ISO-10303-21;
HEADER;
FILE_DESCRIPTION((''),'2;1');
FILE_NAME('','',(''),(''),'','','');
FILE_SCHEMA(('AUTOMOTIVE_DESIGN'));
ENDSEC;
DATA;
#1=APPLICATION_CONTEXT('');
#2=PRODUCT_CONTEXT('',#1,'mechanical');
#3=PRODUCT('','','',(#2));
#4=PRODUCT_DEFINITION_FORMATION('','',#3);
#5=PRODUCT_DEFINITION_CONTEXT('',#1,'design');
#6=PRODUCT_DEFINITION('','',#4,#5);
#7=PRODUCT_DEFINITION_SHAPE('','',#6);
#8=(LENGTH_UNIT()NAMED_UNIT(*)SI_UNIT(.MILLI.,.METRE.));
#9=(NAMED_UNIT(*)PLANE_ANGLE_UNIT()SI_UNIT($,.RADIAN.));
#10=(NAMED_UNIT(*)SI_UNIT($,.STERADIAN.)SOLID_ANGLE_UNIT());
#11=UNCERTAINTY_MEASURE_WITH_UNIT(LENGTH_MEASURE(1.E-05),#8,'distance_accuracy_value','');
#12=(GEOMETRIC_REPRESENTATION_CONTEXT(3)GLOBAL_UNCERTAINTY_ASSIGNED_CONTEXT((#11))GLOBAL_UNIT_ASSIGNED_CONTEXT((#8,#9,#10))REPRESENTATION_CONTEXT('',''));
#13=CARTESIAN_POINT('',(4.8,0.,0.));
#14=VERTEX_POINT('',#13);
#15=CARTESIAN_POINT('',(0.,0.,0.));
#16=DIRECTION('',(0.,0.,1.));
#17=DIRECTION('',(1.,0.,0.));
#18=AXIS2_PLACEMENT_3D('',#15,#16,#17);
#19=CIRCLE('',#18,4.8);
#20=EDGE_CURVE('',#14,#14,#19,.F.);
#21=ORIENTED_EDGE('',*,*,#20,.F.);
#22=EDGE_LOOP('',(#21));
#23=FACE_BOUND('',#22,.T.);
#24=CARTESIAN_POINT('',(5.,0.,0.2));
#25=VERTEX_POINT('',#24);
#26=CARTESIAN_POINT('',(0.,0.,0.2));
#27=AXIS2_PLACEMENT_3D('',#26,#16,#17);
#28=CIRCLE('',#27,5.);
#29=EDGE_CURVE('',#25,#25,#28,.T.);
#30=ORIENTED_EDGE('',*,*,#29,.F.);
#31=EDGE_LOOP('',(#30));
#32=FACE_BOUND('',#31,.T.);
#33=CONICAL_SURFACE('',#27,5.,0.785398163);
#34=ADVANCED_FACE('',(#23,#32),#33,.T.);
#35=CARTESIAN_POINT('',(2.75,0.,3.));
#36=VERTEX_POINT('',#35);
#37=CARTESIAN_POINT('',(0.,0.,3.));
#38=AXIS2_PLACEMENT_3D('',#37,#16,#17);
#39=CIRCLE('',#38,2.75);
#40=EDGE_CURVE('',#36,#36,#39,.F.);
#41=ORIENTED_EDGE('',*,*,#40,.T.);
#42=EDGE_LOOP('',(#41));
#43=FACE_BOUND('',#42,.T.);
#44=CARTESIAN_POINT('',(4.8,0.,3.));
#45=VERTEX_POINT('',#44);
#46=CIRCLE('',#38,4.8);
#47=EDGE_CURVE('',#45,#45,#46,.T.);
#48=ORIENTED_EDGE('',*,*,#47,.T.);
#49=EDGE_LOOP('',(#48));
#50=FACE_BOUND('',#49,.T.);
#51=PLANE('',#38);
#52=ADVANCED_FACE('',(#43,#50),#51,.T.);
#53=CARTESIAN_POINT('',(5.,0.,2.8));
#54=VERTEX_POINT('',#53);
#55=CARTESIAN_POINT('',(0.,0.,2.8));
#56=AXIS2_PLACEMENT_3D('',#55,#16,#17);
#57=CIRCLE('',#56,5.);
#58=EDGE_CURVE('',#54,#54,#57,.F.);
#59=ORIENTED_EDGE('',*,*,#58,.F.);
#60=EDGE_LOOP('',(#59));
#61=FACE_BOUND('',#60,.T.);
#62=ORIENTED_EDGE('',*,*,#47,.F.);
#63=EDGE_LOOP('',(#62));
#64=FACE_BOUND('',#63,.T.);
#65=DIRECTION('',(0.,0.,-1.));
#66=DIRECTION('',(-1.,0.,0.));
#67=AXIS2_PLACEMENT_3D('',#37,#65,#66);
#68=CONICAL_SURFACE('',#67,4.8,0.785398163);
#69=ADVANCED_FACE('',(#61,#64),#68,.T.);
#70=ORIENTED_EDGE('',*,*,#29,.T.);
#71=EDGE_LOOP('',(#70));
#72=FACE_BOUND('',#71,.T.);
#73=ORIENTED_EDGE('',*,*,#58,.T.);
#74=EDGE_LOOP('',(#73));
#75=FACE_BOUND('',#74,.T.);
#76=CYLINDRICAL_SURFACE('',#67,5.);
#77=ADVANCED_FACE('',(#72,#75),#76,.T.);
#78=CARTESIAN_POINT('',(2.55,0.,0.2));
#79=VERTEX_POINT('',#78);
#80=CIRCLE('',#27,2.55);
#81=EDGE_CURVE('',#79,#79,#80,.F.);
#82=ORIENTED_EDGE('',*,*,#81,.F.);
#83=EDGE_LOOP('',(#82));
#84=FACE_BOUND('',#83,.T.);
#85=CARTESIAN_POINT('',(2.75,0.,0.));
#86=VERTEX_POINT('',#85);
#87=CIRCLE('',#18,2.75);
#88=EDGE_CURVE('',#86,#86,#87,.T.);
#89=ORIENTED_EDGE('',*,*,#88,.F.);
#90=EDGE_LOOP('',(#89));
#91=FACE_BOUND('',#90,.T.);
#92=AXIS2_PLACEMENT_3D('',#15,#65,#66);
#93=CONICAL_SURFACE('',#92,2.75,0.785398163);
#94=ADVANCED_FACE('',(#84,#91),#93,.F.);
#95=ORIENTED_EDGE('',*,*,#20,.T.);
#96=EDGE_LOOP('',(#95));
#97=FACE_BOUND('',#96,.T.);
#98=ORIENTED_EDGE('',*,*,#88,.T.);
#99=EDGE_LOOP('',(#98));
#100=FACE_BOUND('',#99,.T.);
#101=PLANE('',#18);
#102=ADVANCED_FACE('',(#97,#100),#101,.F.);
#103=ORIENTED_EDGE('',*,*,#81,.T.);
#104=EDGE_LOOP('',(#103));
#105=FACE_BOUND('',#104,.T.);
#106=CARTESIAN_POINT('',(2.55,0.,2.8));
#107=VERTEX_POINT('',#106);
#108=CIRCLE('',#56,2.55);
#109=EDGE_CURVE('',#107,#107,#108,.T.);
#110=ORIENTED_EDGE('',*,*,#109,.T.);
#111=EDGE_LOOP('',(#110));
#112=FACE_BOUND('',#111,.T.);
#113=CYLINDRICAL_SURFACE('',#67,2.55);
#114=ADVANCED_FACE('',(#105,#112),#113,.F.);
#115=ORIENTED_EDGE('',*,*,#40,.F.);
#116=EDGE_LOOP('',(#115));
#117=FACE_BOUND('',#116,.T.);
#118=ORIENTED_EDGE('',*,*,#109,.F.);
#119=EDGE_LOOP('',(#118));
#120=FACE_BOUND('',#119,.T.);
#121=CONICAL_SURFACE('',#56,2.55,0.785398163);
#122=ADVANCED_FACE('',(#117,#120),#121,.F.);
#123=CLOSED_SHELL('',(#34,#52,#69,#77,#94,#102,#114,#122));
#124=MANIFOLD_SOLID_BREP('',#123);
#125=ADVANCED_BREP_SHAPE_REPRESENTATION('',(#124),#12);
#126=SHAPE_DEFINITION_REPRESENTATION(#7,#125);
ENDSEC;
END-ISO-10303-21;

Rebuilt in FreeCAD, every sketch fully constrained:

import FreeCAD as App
import Part
import Sketcher

V = App.Vector
Q = App.Units.Quantity


def edges_at(feature, points):
    """Names of the edges that pass closest to the given points."""
    edges = feature.Shape.Edges
    near = lambda p: min(range(len(edges)), key=lambda i: edges[i].distToShape(Part.Vertex(*p))[0])
    return sorted({f"Edge{near(p) + 1}" for p in points})

doc = App.newDocument("Part")
body = doc.addObject("PartDesign::Body", "Body")

# Sketch on XY plane
sketch1 = doc.addObject("Sketcher::SketchObject", "Sketch")
body.addObject(sketch1)
sketch1.AttachmentSupport = (doc.XY_Plane, [""])
sketch1.MapMode = "FlatFace"
sketch1.addGeometry([
    Part.Circle(V(0, 0, 0), V(0, 0, 1), 5),
    Part.Circle(V(0, 0, 0), V(0, 0, 1), 2.5),
], False)
sketch1.addConstraint([
    Sketcher.Constraint("Coincident", 0, 3, -1, 1),
    Sketcher.Constraint("Coincident", 1, 3, -1, 1),
    Sketcher.Constraint("Diameter", 0, Q("10 mm")),
    Sketcher.Constraint("Diameter", 1, Q("5.1 mm")),
])
pad1 = doc.addObject("PartDesign::Pad", "Pad")
body.addObject(pad1)
pad1.Profile = sketch1
pad1.Length = 3
doc.recompute()

chamfer = doc.addObject("PartDesign::Chamfer", "Chamfer")
body.addObject(chamfer)
chamfer.Base = (pad1, edges_at(pad1, [
    (-5, 0, 0),
    (-5, 0, 3),
    (-2.55, 0, 0),
    (-2.55, 0, 3),
]))
chamfer.Size = 0.2

doc.recompute()
